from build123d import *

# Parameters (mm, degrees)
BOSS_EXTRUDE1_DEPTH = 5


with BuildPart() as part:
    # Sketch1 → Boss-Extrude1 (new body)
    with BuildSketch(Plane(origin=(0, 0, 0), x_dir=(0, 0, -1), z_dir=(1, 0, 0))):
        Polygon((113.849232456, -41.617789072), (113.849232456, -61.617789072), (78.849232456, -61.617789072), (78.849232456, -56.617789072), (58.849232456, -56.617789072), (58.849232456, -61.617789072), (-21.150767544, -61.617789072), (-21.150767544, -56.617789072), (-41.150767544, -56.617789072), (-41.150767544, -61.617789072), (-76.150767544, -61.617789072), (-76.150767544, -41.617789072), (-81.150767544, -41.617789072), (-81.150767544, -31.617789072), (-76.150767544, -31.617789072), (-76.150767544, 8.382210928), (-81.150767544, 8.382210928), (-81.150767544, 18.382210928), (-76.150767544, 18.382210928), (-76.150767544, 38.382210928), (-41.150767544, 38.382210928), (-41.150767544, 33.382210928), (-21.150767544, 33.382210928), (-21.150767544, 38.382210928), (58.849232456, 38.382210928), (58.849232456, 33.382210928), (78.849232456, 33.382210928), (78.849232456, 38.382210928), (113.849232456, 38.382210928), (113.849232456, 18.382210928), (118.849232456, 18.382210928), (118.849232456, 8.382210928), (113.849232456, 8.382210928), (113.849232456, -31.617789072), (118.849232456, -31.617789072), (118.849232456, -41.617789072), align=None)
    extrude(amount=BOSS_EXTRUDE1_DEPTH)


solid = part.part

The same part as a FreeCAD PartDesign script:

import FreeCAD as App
import Part
import Sketcher
from FreeCAD import Vector
Q = App.Units.Quantity


def add_polygon(sketch, points):
    """Adds a closed chain of lines whose ends are joined by coincident constraints."""
    first, n = sketch.GeometryCount, len(points)
    for a, b in zip(points, points[1:] + points[:1]):
        sketch.addGeometry(Part.LineSegment(App.Vector(*a, 0), App.Vector(*b, 0)), False)
    for i in range(n):
        sketch.addConstraint(Sketcher.Constraint("Coincident", first + i, 2, first + (i + 1) % n, 1))

doc = App.newDocument("Part")
body = doc.addObject("PartDesign::Body", "Body")

# Sketch on YZ plane
sketch1 = doc.addObject("Sketcher::SketchObject", "Sketch")
body.addObject(sketch1)
sketch1.AttachmentSupport = (doc.YZ_Plane, [""])
sketch1.MapMode = "FlatFace"
add_polygon(sketch1, [(-61.617789, -113.849232), (-41.617789, -113.849232), (-41.617789, -118.849232), (-31.617789, -118.849232), (-31.617789, -113.849232), (8.382211, -113.849232), (8.382211, -118.849232), (18.382211, -118.849232), (18.382211, -113.849232), (38.382211, -113.849232), (38.382211, -78.849232), (33.382211, -78.849232), (33.382211, -58.849232), (38.382211, -58.849232), (38.382211, 21.150768), (33.382211, 21.150768), (33.382211, 41.150768), (38.382211, 41.150768), (38.382211, 76.150768), (18.382211, 76.150768), (18.382211, 81.150768), (8.382211, 81.150768), (8.382211, 76.150768), (-31.617789, 76.150768), (-31.617789, 81.150768), (-41.617789, 81.150768), (-41.617789, 76.150768), (-61.617789, 76.150768), (-61.617789, 41.150768), (-56.617789, 41.150768), (-56.617789, 21.150768), (-61.617789, 21.150768), (-61.617789, -58.849232), (-56.617789, -58.849232), (-56.617789, -78.849232), (-61.617789, -78.849232)])  # lines 0-35
sketch1.addConstraint(Sketcher.Constraint("Horizontal", 0))
sketch1.addConstraint(Sketcher.Constraint("Vertical", 1))
sketch1.addConstraint(Sketcher.Constraint("Horizontal", 2))
sketch1.addConstraint(Sketcher.Constraint("Vertical", 3))
sketch1.addConstraint(Sketcher.Constraint("Horizontal", 4))
sketch1.addConstraint(Sketcher.Constraint("Vertical", 5))
sketch1.addConstraint(Sketcher.Constraint("Horizontal", 6))
sketch1.addConstraint(Sketcher.Constraint("Vertical", 7))
sketch1.addConstraint(Sketcher.Constraint("Horizontal", 8))
sketch1.addConstraint(Sketcher.Constraint("Vertical", 9))
sketch1.addConstraint(Sketcher.Constraint("Horizontal", 10))
sketch1.addConstraint(Sketcher.Constraint("Vertical", 11))
sketch1.addConstraint(Sketcher.Constraint("Horizontal", 12))
sketch1.addConstraint(Sketcher.Constraint("Vertical", 13))
sketch1.addConstraint(Sketcher.Constraint("Horizontal", 14))
sketch1.addConstraint(Sketcher.Constraint("Vertical", 15))
sketch1.addConstraint(Sketcher.Constraint("Horizontal", 16))
sketch1.addConstraint(Sketcher.Constraint("Vertical", 17))
sketch1.addConstraint(Sketcher.Constraint("Horizontal", 18))
sketch1.addConstraint(Sketcher.Constraint("Vertical", 19))
sketch1.addConstraint(Sketcher.Constraint("Horizontal", 20))
sketch1.addConstraint(Sketcher.Constraint("Vertical", 21))
sketch1.addConstraint(Sketcher.Constraint("Horizontal", 22))
sketch1.addConstraint(Sketcher.Constraint("Vertical", 23))
sketch1.addConstraint(Sketcher.Constraint("Horizontal", 24))
sketch1.addConstraint(Sketcher.Constraint("Vertical", 25))
sketch1.addConstraint(Sketcher.Constraint("Horizontal", 26))
sketch1.addConstraint(Sketcher.Constraint("Vertical", 27))
sketch1.addConstraint(Sketcher.Constraint("Horizontal", 28))
sketch1.addConstraint(Sketcher.Constraint("Vertical", 29))
sketch1.addConstraint(Sketcher.Constraint("Horizontal", 30))
sketch1.addConstraint(Sketcher.Constraint("Vertical", 31))
sketch1.addConstraint(Sketcher.Constraint("Horizontal", 32))
sketch1.addConstraint(Sketcher.Constraint("Vertical", 33))
sketch1.addConstraint(Sketcher.Constraint("Horizontal", 34))
sketch1.addConstraint(Sketcher.Constraint("Vertical", 35))
sketch1.addConstraint(Sketcher.Constraint("Horizontal", 0, 2, 3, 2))
sketch1.addConstraint(Sketcher.Constraint("Horizontal", 2, 2, 5, 2))
sketch1.addConstraint(Sketcher.Constraint("Horizontal", 4, 2, 7, 2))
sketch1.addConstraint(Sketcher.Constraint("Horizontal", 18, 2, 21, 2))
sketch1.addConstraint(Sketcher.Constraint("Horizontal", 20, 2, 23, 2))
sketch1.addConstraint(Sketcher.Constraint("Horizontal", 22, 2, 25, 2))
sketch1.addConstraint(Sketcher.Constraint("Horizontal", 16, 2, 27, 2))
sketch1.addConstraint(Sketcher.Constraint("Horizontal", 14, 2, 29, 2))
sketch1.addConstraint(Sketcher.Constraint("Horizontal", 12, 2, 31, 2))
sketch1.addConstraint(Sketcher.Constraint("Horizontal", 10, 2, 33, 2))
sketch1.addConstraint(Sketcher.Constraint("Vertical", 9, 2, 12, 2))
sketch1.addConstraint(Sketcher.Constraint("Vertical", 11, 2, 14, 2))
sketch1.addConstraint(Sketcher.Constraint("Vertical", 13, 2, 16, 2))
sketch1.addConstraint(Sketcher.Constraint("Vertical", 7, 2, 18, 2))
sketch1.addConstraint(Sketcher.Constraint("Vertical", 5, 2, 20, 2))
sketch1.addConstraint(Sketcher.Constraint("Vertical", 3, 2, 22, 2))
sketch1.addConstraint(Sketcher.Constraint("Vertical", 1, 2, 24, 2))
sketch1.addConstraint(Sketcher.Constraint("Vertical", 27, 2, 30, 2))
sketch1.addConstraint(Sketcher.Constraint("Vertical", 29, 2, 32, 2))
sketch1.addConstraint(Sketcher.Constraint("Vertical", 31, 2, 34, 2))
sketch1.addConstraint(Sketcher.Constraint("Equal", 2, 6))
sketch1.addConstraint(Sketcher.Constraint("Equal", 0, 8))
sketch1.addConstraint(Sketcher.Constraint("Equal", 16, 28))
sketch1.addConstraint(Sketcher.Constraint("Equal", 34, 1))
sketch1.addConstraint(Sketcher.Constraint("Equal", 26, 11))
sketch1.addConstraint(Sketcher.Constraint("Equal", 11, 15))
sketch1.addConstraint(Sketcher.Constraint("Equal", 9, 17))
sketch1.addConstraint(Sketcher.Constraint("Equal", 7, 19))
sketch1.addConstraint(Sketcher.Constraint("DistanceX", 0, 1, 0, 2, Q("20 mm")))
sketch1.addConstraint(Sketcher.Constraint("DistanceX", 2, 1, 2, 2, Q("10 mm")))
sketch1.addConstraint(Sketcher.Constraint("DistanceX", 4, 1, 4, 2, Q("40 mm")))
sketch1.addConstraint(Sketcher.Constraint("DistanceX", 10, 2, 10, 1, Q("5 mm")))
sketch1.addConstraint(Sketcher.Constraint("DistanceY", 9, 1, 9, 2, Q("35 mm")))
sketch1.addConstraint(Sketcher.Constraint("DistanceY", 13, 1, 13, 2, Q("80 mm")))
sketch1.addConstraint(Sketcher.Constraint("DistanceX", 0, 2, -1, 1, Q("41.617789 mm")))
sketch1.addConstraint(Sketcher.Constraint("DistanceY", 0, 2, -1, 1, Q("113.849232 mm")))
pad1 = doc.addObject("PartDesign::Pad", "Pad")
body.addObject(pad1)
pad1.Profile = sketch1
pad1.Length = 5

doc.recompute()
